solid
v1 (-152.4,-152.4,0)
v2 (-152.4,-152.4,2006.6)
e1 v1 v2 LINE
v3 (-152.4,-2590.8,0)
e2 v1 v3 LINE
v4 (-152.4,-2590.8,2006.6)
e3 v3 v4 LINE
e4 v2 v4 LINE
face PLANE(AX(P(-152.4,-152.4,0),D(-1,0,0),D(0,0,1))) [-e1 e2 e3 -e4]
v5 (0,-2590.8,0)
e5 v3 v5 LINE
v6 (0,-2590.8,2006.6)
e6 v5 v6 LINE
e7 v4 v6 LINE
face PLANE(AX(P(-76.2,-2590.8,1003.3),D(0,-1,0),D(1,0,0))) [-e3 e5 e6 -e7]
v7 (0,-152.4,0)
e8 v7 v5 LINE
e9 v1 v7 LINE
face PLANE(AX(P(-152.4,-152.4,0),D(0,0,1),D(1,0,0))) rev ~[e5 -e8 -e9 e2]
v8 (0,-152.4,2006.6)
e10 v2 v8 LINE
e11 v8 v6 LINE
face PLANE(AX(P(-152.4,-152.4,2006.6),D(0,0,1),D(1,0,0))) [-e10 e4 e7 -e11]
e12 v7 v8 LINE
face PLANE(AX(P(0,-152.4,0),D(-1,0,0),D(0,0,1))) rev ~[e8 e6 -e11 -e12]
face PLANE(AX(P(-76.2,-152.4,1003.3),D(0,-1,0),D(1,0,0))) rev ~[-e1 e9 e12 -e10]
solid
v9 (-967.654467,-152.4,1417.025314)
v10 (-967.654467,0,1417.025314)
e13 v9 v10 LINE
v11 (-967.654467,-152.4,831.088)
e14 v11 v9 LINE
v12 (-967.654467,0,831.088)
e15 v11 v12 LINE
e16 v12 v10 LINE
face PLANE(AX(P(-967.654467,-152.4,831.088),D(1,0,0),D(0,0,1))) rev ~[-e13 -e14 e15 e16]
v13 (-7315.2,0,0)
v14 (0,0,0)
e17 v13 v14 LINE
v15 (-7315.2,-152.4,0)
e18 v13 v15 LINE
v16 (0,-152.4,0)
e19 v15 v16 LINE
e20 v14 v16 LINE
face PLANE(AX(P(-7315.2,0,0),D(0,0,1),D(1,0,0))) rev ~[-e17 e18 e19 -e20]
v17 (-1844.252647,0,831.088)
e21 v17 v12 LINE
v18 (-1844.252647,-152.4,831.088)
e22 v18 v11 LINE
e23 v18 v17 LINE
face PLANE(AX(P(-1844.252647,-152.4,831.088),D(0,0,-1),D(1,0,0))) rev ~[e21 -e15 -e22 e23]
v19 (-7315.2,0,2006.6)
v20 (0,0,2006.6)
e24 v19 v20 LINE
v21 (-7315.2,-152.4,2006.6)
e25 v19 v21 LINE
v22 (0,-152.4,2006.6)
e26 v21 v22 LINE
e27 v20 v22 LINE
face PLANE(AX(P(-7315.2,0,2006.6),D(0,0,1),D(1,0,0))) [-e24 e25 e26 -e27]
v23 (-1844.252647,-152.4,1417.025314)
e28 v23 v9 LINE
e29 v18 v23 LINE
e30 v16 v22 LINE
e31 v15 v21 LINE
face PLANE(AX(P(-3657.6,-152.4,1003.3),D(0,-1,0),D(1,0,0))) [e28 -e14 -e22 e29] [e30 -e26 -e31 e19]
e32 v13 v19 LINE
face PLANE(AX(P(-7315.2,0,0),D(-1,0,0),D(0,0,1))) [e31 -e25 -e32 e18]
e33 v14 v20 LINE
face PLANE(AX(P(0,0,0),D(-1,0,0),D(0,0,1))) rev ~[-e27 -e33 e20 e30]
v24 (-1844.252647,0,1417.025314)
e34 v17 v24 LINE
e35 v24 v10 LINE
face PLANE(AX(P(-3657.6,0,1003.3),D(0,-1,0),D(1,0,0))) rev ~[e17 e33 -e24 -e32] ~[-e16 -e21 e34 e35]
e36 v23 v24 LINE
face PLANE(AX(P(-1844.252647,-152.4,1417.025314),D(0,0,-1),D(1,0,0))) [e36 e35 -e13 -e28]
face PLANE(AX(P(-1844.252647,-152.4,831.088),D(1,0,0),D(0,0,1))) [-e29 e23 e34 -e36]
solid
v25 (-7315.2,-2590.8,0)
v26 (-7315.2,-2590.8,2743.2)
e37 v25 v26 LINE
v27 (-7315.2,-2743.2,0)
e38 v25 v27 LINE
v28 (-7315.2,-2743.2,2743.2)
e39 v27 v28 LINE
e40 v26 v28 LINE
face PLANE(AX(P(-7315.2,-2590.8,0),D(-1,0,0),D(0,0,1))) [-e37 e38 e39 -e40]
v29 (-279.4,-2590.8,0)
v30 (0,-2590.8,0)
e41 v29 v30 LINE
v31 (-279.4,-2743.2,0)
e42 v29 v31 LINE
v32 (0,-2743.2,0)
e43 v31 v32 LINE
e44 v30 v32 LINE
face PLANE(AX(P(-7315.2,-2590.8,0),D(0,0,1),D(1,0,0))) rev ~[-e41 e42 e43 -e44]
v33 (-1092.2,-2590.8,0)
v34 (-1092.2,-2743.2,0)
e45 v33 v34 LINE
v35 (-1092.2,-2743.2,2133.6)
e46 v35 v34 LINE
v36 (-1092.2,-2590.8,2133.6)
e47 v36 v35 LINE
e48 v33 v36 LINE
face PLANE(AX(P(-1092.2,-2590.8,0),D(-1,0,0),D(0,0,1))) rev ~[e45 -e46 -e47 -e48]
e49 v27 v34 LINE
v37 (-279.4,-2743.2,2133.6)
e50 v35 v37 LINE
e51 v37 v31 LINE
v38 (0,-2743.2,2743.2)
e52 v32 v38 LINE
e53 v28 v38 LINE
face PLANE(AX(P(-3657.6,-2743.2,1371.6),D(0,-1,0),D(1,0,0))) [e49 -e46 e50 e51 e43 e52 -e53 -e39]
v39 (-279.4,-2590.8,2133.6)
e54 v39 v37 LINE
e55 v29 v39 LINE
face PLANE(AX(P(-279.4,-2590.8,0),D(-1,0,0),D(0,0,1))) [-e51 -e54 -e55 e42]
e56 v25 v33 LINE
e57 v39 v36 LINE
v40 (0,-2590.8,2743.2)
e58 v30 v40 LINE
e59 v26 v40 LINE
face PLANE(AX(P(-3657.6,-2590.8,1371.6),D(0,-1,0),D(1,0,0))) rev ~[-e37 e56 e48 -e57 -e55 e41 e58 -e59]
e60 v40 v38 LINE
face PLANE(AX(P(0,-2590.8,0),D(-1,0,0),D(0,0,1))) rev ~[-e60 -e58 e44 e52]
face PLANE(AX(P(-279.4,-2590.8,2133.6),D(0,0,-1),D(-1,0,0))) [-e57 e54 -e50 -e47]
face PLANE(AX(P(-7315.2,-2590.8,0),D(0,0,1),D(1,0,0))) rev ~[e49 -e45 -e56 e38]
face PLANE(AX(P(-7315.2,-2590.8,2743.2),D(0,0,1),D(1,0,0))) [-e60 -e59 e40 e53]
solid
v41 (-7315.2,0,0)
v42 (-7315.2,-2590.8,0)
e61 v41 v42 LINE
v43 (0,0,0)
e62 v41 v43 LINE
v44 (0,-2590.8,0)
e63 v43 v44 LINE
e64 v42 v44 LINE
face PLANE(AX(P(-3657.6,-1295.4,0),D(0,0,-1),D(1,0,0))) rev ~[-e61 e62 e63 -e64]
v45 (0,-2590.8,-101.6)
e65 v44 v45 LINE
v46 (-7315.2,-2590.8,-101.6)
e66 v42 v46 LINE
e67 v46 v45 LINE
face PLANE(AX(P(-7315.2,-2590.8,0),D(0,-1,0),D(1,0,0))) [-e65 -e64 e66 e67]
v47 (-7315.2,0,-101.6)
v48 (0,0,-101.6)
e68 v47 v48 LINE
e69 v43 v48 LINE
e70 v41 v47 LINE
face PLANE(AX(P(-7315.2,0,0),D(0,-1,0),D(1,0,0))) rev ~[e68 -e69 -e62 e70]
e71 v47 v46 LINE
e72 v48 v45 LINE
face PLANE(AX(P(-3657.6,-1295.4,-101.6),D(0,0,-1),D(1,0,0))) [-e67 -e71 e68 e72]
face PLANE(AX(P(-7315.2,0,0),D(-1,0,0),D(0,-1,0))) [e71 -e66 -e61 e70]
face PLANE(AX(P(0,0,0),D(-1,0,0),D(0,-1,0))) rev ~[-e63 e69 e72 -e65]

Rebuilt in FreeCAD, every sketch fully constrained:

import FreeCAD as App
import Part
import Sketcher
Q = App.Units.Quantity


def add_polygon(sketch, points):
    """Adds a closed chain of lines whose ends are joined by coincident constraints."""
    first, n = sketch.GeometryCount, len(points)
    for a, b in zip(points, points[1:] + points[:1]):
        sketch.addGeometry(Part.LineSegment(App.Vector(*a, 0), App.Vector(*b, 0)), False)
    for i in range(n):
        sketch.addConstraint(Sketcher.Constraint("Coincident", first + i, 2, first + (i + 1) % n, 1))

doc = App.newDocument("Part")
body = doc.addObject("PartDesign::Body", "Body")

sketch1 = body.newObject("Sketcher::SketchObject", "Sketch")
sketch1.AttachmentSupport = (doc.getObject("XZ_Plane"), [""])
sketch1.MapMode = "FlatFace"
add_polygon(sketch1, [(-7315.2, 2006.6), (-7315.2, 0), (0, 0), (0, 2006.6)])
sketch1.addConstraint([
    Sketcher.Constraint("Vertical", 0),
    Sketcher.Constraint("Horizontal", 1),
    Sketcher.Constraint("Vertical", 2),
    Sketcher.Constraint("Horizontal", 3),
    Sketcher.Constraint("Coincident", 1, 2, -1, 1),
    Sketcher.Constraint("DistanceX", 1, 1, 1, 2, Q("288 in")),
    Sketcher.Constraint("DistanceY", 0, 2, 0, 1, Q("79 in")),
])
pad1 = body.newObject("PartDesign::Pad", "Pad")
pad1.Profile = sketch1
pad1.Length = Q("6 in")

sketch2 = body.newObject("Sketcher::SketchObject", "Sketch001")
sketch2.AttachmentSupport = (doc.getObject("XZ_Plane"), [""])
sketch2.MapMode = "FlatFace"
sketch2.AttachmentOffset = App.Placement(App.Vector(0, 0, 6 * 25.4), App.Rotation())
add_polygon(sketch2, [(-1844.252647, 1417.025314), (-1844.252647, 831.088), (-967.654467, 831.088), (-967.654467, 1417.025314)])
sketch2.addConstraint([
    Sketcher.Constraint("Vertical", 0),
    Sketcher.Constraint("Horizontal", 1),
    Sketcher.Constraint("Vertical", 2),
    Sketcher.Constraint("Horizontal", 3),
    Sketcher.Constraint("DistanceY", -1, 1, 0, 2, Q("32.72 in")),
    Sketcher.Constraint("DistanceX", 1, 1, 1, 2, Q("876.598181 mm")),
    Sketcher.Constraint("DistanceY", 0, 2, 0, 1, Q("585.937315 mm")),
    Sketcher.Constraint("DistanceX", 0, 2, -1, 1, Q("1844.252647 mm")),
])
pocket1 = body.newObject("PartDesign::Pocket", "Pocket")
pocket1.Profile = sketch2
pocket1.Type = "ThroughAll"
body2 = doc.addObject("PartDesign::Body", "Body001")

sketch3 = body2.newObject("Sketcher::SketchObject", "Sketch002")
sketch3.AttachmentSupport = (doc.getObject("XZ_Plane001"), [""])
sketch3.MapMode = "FlatFace"
sketch3.AttachmentOffset = App.Placement(App.Vector(0, 0, 6 * 25.4), App.Rotation())
add_polygon(sketch3, [(-152.4, 2006.6), (-152.4, 0), (0, 0), (0, 2006.6)])
sketch3.addConstraint([
    Sketcher.Constraint("Vertical", 0),
    Sketcher.Constraint("Horizontal", 1),
    Sketcher.Constraint("Vertical", 2),
    Sketcher.Constraint("Horizontal", 3),
    Sketcher.Constraint("Coincident", 1, 2, -1, 1),
    Sketcher.Constraint("DistanceX", 1, 1, 1, 2, Q("6 in")),
    Sketcher.Constraint("DistanceY", 0, 2, 0, 1, Q("79 in")),
])
pad2 = body2.newObject("PartDesign::Pad", "Pad001")
pad2.Profile = sketch3
pad2.Length = Q("96 in")
body3 = doc.addObject("PartDesign::Body", "Body002")

sketch4 = body3.newObject("Sketcher::SketchObject", "Sketch003")
sketch4.AttachmentSupport = (doc.getObject("XY_Plane002"), [""])
sketch4.MapMode = "FlatFace"
add_polygon(sketch4, [(-7315.2, -2590.8), (-7315.2, 0), (0, 0), (0, -2590.8)])
sketch4.addConstraint([
    Sketcher.Constraint("Vertical", 0),
    Sketcher.Constraint("Horizontal", 1),
    Sketcher.Constraint("Vertical", 2),
    Sketcher.Constraint("Horizontal", 3),
    Sketcher.Constraint("Coincident", 1, 2, -1, 1),
    Sketcher.Constraint("DistanceX", 1, 1, 1, 2, Q("288 in")),
    Sketcher.Constraint("DistanceY", 0, 1, 0, 2, Q("102 in")),
])
pad3 = body3.newObject("PartDesign::Pad", "Pad002")
pad3.Profile = sketch4
pad3.Length = Q("4 in")
pad3.Reversed = True
body4 = doc.addObject("PartDesign::Body", "Body003")

sketch5 = body4.newObject("Sketcher::SketchObject", "Sketch004")
sketch5.AttachmentSupport = (doc.getObject("XZ_Plane003"), [""])
sketch5.MapMode = "FlatFace"
sketch5.AttachmentOffset = App.Placement(App.Vector(0, 0, 102 * 25.4), App.Rotation())
add_polygon(sketch5, [(-7315.2, 2743.2), (-7315.2, 0), (0, 0), (0, 2743.2)])
sketch5.addConstraint([
    Sketcher.Constraint("Vertical", 0),
    Sketcher.Constraint("Horizontal", 1),
    Sketcher.Constraint("Vertical", 2),
    Sketcher.Constraint("Horizontal", 3),
    Sketcher.Constraint("Coincident", 1, 2, -1, 1),
    Sketcher.Constraint("DistanceX", 1, 1, 1, 2, Q("288 in")),
    Sketcher.Constraint("DistanceY", 0, 2, 0, 1, Q("108 in")),
])
pad4 = body4.newObject("PartDesign::Pad", "Pad003")
pad4.Profile = sketch5
pad4.Length = Q("6 in")

sketch6 = body4.newObject("Sketcher::SketchObject", "Sketch005")
sketch6.AttachmentSupport = (doc.getObject("XZ_Plane003"), [""])
sketch6.MapMode = "FlatFace"
sketch6.AttachmentOffset = App.Placement(App.Vector(0, 0, 102 * 25.4), App.Rotation())
add_polygon(sketch6, [(-279.4, 2133.6), (-279.4, 0), (-1092.2, 0), (-1092.2, 2133.6)])
sketch6.addConstraint([
    Sketcher.Constraint("Vertical", 0),
    Sketcher.Constraint("Horizontal", 1),
    Sketcher.Constraint("Vertical", 2),
    Sketcher.Constraint("Horizontal", 3),
    Sketcher.Constraint("PointOnObject", 0, 2, -1),
    Sketcher.Constraint("DistanceX", 1, 2, 1, 1, Q("32 in")),
    Sketcher.Constraint("DistanceY", 0, 2, 0, 1, Q("84 in")),
    Sketcher.Constraint("DistanceX", 0, 2, -1, 1, Q("11 in")),
])
pocket2 = body4.newObject("PartDesign::Pocket", "Pocket001")
pocket2.Profile = sketch6
pocket2.Type = "ThroughAll"
pocket2.Reversed = True

doc.recompute()
